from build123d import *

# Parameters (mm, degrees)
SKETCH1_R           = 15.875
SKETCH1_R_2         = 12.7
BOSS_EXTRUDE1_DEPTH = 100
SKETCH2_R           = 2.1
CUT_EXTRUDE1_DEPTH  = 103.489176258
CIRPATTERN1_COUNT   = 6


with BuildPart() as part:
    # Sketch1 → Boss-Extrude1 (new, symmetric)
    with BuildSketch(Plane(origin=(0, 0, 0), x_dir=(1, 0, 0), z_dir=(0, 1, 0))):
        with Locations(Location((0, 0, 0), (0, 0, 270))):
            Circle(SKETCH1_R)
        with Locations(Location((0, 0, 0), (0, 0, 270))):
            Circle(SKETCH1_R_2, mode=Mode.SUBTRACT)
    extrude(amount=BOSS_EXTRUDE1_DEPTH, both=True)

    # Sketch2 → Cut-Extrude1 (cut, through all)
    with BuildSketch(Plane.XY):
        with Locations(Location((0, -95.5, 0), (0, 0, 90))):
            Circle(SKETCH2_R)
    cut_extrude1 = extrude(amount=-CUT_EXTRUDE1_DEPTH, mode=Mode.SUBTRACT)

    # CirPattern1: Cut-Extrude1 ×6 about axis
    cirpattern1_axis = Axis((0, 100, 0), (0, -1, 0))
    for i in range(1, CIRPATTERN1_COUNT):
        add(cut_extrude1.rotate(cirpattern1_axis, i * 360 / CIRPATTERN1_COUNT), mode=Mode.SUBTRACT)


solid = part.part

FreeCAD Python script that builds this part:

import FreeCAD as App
import Part
import Sketcher
from FreeCAD import Vector

doc = App.newDocument("Part")
body = doc.addObject("PartDesign::Body", "Body")

# Sketch on XZ plane
sketch1 = doc.addObject("Sketcher::SketchObject", "Sketch")
body.addObject(sketch1)
sketch1.AttachmentSupport = (doc.XZ_Plane, [""])
sketch1.MapMode = "FlatFace"
sketch1.addGeometry([
    Part.Circle(Vector(0, 0, 0), Vector(0, 0, 1), 16),
    Part.Circle(Vector(0, 0, 0), Vector(0, 0, 1), 13),
], False)
sketch1.addConstraint([
    Sketcher.Constraint("Coincident", 0, 3, -1, 1),
    Sketcher.Constraint("Coincident", 1, 3, -1, 1),
    Sketcher.Constraint("Diameter", 1, 25.4),
    Sketcher.Constraint("Diameter", 0, 31.75),
])
pad1 = doc.addObject("PartDesign::Pad", "Pad")
body.addObject(pad1)
pad1.Profile = sketch1
pad1.Length = 200
pad1.Midplane = True

# Sketch on XY plane
sketch2 = doc.addObject("Sketcher::SketchObject", "Sketch001")
body.addObject(sketch2)
sketch2.AttachmentSupport = (doc.XY_Plane, [""])
sketch2.MapMode = "FlatFace"
sketch2.addGeometry(Part.Circle(Vector(0, -95.5, 0), Vector(0, 0, 1), 2.1), False)
sketch2.addConstraint([
    Sketcher.Constraint("PointOnObject", 0, 3, -2),
    Sketcher.Constraint("Diameter", 0, 4.2),
    Sketcher.Constraint("DistanceY", 0, 3, -1, 1, 95.5),
])
pocket1 = doc.addObject("PartDesign::Pocket", "Pocket")
body.addObject(pocket1)
pocket1.Profile = sketch2
pocket1.Type = "ThroughAll"
doc.recompute()

polarpattern = doc.addObject("PartDesign::PolarPattern", "PolarPattern")
body.addObject(polarpattern)
polarpattern.Originals = [pocket1]
polarpattern.Axis = (doc.Y_Axis, [""])
polarpattern.Angle = 360
polarpattern.Occurrences = 6
body.Tip = polarpattern

doc.recompute()
